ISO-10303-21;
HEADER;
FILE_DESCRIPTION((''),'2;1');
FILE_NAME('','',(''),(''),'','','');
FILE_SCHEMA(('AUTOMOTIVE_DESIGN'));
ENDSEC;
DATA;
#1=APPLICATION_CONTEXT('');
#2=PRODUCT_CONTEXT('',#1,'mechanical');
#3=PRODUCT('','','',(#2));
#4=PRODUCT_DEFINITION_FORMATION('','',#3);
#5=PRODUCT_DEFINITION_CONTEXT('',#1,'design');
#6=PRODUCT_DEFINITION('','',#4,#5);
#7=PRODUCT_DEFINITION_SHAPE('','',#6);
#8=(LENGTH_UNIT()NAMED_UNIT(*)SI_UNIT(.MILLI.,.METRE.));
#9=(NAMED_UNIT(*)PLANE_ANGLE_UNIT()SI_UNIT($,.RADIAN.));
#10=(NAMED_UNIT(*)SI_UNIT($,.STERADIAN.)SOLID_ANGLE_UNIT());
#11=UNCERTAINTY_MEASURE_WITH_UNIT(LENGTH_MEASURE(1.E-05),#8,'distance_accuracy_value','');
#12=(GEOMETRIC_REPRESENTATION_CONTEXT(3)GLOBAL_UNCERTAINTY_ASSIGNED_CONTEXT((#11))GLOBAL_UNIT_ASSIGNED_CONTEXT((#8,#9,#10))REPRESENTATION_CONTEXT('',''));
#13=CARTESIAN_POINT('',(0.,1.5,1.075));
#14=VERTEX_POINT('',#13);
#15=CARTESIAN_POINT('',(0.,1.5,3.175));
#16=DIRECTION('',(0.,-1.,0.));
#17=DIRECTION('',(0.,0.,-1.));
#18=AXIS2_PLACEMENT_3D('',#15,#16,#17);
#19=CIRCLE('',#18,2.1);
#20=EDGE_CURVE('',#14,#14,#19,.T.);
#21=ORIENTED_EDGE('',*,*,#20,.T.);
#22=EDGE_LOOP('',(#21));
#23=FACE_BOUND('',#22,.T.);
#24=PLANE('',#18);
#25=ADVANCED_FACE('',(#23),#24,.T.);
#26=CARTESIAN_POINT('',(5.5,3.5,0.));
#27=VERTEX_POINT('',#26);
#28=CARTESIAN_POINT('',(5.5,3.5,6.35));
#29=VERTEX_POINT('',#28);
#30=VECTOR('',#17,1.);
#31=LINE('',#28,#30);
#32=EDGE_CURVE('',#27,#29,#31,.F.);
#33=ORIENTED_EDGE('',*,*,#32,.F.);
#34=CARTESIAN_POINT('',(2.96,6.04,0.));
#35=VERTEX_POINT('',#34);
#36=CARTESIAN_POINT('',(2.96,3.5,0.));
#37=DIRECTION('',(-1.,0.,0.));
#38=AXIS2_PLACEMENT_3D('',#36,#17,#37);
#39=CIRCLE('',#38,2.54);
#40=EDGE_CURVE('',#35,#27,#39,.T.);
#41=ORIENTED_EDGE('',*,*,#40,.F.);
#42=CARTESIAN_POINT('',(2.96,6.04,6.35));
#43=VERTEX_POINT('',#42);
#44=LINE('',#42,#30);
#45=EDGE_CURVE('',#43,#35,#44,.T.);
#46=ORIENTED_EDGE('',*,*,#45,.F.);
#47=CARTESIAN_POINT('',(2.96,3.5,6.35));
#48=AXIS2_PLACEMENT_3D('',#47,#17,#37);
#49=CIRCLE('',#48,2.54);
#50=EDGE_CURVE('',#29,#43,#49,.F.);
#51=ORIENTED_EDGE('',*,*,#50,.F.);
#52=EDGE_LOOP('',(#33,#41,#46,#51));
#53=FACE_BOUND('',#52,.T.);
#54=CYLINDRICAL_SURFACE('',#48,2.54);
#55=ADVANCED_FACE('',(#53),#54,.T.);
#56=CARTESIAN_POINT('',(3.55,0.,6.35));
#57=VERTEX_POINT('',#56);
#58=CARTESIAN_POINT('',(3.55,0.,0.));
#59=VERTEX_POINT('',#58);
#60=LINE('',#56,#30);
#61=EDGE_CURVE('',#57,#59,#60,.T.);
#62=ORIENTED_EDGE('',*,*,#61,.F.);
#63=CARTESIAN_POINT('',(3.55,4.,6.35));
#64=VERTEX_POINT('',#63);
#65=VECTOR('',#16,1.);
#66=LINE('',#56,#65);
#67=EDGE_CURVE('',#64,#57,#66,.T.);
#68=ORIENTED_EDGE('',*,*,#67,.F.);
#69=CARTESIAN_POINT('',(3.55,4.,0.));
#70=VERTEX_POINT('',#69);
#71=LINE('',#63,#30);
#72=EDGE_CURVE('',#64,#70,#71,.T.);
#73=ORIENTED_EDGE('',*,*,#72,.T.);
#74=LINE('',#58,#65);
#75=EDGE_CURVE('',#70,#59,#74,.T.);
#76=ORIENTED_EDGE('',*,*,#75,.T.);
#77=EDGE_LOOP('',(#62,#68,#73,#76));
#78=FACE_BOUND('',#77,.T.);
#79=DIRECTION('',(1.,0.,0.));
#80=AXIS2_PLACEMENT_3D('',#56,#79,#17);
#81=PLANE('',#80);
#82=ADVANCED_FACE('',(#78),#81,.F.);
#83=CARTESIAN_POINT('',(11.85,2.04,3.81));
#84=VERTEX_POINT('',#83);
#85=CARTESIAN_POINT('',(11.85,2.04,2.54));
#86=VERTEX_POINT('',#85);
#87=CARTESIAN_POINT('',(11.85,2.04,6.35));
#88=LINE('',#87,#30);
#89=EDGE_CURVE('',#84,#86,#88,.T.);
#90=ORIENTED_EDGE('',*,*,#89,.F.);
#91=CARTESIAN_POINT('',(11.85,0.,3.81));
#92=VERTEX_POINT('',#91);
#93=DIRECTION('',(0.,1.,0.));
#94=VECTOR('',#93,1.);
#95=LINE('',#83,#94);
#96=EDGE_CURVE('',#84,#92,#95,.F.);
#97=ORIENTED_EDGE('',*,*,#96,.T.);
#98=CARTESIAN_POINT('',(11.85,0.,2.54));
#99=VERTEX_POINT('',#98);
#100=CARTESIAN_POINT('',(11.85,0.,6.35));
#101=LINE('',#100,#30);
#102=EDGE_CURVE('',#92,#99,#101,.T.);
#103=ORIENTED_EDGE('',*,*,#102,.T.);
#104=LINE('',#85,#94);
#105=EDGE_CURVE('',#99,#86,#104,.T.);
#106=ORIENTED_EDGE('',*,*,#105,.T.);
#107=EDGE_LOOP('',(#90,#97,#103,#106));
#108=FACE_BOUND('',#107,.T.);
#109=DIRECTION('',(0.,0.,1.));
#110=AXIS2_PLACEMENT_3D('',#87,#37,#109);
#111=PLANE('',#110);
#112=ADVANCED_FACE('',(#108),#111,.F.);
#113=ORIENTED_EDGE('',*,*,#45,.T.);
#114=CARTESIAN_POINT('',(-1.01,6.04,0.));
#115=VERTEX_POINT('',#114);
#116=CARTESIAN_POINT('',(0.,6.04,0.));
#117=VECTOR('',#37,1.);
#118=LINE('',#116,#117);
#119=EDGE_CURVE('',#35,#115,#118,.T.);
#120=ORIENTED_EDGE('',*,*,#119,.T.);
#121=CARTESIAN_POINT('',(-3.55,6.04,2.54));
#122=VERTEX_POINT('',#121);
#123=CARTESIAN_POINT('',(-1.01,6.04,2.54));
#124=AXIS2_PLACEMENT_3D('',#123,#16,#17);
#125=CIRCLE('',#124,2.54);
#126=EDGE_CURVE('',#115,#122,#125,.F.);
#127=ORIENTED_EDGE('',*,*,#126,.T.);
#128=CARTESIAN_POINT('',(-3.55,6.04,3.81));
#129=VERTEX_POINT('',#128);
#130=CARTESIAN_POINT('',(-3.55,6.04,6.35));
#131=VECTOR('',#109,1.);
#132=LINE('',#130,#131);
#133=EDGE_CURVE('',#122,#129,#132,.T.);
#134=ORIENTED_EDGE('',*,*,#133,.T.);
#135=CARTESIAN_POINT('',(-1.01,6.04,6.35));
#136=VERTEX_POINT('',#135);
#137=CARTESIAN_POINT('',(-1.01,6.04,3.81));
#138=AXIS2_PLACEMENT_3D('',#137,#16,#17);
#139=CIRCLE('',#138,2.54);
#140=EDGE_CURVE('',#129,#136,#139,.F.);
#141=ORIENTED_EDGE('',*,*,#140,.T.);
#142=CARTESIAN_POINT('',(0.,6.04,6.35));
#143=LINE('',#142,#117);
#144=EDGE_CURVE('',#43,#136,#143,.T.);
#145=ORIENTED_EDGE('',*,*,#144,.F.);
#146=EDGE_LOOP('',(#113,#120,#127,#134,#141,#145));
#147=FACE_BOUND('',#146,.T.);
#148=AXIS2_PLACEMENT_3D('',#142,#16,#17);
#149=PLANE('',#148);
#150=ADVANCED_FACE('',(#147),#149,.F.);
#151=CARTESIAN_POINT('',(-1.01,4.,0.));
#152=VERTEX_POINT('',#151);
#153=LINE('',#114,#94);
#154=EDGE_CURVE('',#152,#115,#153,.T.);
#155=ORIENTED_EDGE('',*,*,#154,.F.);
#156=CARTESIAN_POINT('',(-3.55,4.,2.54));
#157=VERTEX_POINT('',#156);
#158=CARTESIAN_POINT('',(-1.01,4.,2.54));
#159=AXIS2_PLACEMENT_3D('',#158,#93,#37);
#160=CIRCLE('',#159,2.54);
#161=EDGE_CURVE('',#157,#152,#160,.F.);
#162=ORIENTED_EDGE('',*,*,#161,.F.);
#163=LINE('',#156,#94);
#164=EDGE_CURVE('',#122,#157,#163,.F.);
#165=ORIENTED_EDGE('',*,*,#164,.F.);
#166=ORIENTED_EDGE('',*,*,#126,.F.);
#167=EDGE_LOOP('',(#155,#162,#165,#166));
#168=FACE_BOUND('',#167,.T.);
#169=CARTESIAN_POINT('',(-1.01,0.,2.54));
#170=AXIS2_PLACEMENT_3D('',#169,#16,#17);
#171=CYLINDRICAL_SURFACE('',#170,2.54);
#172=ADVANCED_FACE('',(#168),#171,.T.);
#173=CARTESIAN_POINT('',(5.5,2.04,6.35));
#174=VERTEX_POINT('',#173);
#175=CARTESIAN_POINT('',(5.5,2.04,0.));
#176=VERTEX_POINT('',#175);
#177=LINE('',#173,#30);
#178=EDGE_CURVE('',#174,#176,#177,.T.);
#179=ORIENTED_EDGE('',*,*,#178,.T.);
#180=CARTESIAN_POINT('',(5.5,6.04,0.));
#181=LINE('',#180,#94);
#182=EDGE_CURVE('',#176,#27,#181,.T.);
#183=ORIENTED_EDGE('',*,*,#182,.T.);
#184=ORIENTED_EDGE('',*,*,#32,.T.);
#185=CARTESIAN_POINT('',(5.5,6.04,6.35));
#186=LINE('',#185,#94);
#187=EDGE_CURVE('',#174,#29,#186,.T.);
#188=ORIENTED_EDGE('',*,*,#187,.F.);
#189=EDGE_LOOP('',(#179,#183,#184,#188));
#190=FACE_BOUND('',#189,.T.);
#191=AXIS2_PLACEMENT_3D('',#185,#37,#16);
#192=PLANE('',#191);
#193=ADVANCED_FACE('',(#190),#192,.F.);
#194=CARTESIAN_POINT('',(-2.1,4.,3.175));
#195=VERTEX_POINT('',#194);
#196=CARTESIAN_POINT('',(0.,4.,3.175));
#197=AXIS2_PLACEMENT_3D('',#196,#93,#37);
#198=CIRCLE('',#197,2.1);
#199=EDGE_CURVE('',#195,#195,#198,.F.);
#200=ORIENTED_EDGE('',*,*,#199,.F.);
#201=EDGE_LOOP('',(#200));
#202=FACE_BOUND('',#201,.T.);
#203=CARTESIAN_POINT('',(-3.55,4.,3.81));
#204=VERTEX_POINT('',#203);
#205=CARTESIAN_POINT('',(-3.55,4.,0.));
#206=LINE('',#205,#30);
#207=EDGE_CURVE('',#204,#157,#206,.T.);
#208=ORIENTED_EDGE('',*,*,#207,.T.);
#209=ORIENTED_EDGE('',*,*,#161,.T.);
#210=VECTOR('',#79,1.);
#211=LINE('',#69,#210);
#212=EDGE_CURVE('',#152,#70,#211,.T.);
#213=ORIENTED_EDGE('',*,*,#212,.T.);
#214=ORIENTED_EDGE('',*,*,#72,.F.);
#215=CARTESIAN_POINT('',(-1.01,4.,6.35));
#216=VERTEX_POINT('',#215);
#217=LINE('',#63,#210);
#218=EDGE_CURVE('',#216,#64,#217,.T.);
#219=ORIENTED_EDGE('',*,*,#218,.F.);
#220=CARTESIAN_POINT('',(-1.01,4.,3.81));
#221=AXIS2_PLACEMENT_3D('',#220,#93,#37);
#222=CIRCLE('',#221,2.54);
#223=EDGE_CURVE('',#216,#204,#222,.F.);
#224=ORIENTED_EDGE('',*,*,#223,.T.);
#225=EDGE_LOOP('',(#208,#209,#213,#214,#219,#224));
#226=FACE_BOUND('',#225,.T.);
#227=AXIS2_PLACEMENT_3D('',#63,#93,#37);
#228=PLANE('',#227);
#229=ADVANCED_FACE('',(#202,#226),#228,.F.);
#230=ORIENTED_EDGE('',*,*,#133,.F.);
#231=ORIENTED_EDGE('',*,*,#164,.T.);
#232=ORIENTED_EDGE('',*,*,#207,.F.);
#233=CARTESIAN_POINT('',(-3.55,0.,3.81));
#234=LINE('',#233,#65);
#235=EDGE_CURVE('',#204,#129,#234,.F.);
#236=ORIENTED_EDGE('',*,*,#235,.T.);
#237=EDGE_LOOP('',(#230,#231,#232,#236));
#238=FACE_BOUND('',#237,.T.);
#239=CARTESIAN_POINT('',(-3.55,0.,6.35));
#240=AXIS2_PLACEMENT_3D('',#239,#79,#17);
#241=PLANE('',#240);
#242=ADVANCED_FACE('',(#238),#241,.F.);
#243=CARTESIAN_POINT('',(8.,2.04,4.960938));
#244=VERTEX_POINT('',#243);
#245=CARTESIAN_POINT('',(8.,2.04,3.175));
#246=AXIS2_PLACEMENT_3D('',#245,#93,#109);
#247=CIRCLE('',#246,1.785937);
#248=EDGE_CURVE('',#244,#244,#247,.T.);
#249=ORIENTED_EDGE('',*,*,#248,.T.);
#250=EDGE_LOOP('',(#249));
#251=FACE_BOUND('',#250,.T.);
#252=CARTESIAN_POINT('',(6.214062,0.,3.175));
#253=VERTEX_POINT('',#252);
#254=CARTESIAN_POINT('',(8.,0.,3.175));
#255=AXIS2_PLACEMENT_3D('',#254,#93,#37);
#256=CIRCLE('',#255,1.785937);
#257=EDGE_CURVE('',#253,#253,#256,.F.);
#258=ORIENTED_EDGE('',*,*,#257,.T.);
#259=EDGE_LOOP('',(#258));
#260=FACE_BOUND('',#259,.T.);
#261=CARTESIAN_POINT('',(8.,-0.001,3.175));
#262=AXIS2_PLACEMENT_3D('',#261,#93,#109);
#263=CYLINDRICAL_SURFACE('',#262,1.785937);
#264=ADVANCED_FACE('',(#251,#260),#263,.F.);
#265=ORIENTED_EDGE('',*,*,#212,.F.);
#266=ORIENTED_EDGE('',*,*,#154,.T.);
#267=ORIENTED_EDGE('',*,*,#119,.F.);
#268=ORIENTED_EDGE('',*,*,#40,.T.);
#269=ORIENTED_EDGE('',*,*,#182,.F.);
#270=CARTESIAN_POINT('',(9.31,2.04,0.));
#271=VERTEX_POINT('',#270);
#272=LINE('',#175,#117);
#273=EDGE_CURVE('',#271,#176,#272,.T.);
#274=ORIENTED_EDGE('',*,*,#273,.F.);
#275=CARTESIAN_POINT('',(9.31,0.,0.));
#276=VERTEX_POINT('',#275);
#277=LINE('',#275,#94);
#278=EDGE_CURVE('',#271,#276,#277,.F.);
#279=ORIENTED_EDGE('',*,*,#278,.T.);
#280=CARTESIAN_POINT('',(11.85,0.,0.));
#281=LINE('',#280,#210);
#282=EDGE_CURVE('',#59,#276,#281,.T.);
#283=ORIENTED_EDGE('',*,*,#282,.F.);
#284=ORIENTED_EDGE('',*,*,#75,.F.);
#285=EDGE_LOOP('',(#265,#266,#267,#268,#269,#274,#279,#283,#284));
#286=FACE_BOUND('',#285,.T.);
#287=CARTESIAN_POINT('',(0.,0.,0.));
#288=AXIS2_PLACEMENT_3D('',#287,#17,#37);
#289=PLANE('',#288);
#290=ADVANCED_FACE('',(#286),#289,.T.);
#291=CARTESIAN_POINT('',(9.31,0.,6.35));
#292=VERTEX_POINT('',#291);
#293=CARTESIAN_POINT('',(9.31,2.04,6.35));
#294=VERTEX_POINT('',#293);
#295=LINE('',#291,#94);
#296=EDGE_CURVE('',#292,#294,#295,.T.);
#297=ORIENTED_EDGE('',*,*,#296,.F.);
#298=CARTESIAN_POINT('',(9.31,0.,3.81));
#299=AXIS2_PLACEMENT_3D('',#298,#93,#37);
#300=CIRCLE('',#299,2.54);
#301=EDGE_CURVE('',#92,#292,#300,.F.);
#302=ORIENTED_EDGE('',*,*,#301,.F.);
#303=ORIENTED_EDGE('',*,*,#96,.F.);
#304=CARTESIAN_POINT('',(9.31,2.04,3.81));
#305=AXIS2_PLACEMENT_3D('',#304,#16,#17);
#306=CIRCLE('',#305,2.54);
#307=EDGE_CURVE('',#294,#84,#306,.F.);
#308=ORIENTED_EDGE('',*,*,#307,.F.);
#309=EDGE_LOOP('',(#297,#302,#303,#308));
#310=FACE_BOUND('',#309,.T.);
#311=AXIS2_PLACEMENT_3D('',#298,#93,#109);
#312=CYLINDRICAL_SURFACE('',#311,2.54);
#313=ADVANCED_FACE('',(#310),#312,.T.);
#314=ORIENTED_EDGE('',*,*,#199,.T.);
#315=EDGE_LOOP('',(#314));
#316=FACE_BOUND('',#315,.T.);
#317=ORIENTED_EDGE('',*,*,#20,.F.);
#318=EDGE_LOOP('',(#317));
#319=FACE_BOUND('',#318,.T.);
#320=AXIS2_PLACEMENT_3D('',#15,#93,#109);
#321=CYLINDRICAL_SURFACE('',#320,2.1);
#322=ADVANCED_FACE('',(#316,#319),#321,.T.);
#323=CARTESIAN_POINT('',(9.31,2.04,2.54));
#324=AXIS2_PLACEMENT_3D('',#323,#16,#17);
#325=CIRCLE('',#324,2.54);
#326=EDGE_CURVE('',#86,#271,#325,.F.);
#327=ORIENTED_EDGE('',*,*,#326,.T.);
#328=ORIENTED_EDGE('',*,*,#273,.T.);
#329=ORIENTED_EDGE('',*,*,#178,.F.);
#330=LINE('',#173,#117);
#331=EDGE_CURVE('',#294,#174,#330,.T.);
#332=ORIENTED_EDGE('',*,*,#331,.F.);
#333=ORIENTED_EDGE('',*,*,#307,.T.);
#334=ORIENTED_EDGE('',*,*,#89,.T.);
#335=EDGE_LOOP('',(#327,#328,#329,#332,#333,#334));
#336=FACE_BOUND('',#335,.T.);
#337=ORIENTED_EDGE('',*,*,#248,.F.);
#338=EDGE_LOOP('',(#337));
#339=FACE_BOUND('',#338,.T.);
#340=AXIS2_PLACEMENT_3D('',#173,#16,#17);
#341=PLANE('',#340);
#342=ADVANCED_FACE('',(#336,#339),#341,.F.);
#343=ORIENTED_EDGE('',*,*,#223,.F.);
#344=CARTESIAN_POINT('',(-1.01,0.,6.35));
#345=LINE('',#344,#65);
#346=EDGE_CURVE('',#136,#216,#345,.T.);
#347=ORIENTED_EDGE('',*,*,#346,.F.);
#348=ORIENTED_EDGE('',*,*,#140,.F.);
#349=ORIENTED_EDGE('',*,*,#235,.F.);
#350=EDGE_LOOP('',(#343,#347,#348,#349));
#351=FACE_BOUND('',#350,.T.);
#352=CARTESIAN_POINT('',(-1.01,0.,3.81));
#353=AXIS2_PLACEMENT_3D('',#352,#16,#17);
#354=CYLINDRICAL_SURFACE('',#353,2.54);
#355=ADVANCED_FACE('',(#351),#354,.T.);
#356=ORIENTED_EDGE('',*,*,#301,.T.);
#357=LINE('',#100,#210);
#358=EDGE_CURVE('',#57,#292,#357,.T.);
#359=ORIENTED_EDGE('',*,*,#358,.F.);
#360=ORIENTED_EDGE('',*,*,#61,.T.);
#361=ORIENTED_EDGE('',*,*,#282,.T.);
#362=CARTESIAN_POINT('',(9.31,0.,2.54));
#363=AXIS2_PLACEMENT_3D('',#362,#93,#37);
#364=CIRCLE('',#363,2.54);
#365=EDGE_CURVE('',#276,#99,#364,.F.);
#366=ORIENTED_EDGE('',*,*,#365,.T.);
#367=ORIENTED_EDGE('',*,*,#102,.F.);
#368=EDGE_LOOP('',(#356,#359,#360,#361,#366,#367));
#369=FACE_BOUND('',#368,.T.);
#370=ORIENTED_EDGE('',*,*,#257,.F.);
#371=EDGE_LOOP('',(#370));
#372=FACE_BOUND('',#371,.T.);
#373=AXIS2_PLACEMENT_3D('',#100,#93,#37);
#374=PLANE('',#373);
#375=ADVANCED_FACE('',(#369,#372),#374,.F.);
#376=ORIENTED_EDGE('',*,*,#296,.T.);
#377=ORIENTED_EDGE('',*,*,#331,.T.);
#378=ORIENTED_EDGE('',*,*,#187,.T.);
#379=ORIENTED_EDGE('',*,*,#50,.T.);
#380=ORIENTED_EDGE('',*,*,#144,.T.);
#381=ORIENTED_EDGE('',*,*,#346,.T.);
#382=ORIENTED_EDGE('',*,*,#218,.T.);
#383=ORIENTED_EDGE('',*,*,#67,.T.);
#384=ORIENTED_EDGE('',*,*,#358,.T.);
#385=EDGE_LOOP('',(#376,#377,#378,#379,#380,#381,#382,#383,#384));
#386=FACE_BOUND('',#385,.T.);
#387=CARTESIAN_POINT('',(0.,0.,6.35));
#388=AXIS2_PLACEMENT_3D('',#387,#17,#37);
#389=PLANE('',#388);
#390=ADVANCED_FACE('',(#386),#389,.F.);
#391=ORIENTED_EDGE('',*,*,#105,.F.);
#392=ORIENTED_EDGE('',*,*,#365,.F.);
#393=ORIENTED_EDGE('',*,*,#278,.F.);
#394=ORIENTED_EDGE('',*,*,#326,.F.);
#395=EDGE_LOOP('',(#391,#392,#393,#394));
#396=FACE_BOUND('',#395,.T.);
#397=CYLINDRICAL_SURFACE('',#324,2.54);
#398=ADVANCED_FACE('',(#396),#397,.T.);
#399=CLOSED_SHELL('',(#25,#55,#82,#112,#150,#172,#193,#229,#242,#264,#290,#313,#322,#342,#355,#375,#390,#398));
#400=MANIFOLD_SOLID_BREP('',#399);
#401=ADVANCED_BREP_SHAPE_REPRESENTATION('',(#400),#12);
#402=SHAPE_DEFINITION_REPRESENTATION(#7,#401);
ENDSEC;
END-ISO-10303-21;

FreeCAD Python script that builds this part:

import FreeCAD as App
import Part
import Sketcher
from FreeCAD import Vector
Q = App.Units.Quantity


def edges_at(feature, points):
    """Names of the edges that pass closest to the given points."""
    edges = feature.Shape.Edges
    near = lambda p: min(range(len(edges)), key=lambda i: edges[i].distToShape(Part.Vertex(*p))[0])
    return sorted({f"Edge{near(p) + 1}" for p in points})

doc = App.newDocument("Part")
body = doc.addObject("PartDesign::Body", "Body")

sketch1 = body.newObject("Sketcher::SketchObject", "Sketch")
sketch1.AttachmentSupport = (doc.getObject("XY_Plane"), [""])
sketch1.MapMode = "FlatFace"
sketch1.addGeometry(Part.LineSegment(Vector(5.5, 6, 0), Vector(0, 6, 0)), False)
sketch1.addGeometry(Part.LineSegment(Vector(0, 6, 0), Vector(0, 4, 0)), False)
sketch1.addGeometry(Part.LineSegment(Vector(0, 4, 0), Vector(3.5, 4, 0)), False)
sketch1.addGeometry(Part.LineSegment(Vector(3.5, 4, 0), Vector(3.5, 0, 0)), False)
sketch1.addGeometry(Part.LineSegment(Vector(3.5, 0, 0), Vector(11.8, 0, 0)), False)
sketch1.addGeometry(Part.LineSegment(Vector(11.8, 0, 0), Vector(11.8, 2, 0)), False)
sketch1.addGeometry(Part.LineSegment(Vector(11.8, 2, 0), Vector(5.5, 2, 0)), False)
sketch1.addGeometry(Part.LineSegment(Vector(5.5, 2, 0), Vector(5.5, 6, 0)), False)
sketch1.addConstraint(Sketcher.Constraint("Coincident", 0, 2, 1, 1))
sketch1.addConstraint(Sketcher.Constraint("Coincident", 1, 2, 2, 1))
sketch1.addConstraint(Sketcher.Constraint("Coincident", 2, 2, 3, 1))
sketch1.addConstraint(Sketcher.Constraint("Coincident", 3, 2, 4, 1))
sketch1.addConstraint(Sketcher.Constraint("Coincident", 4, 2, 5, 1))
sketch1.addConstraint(Sketcher.Constraint("Coincident", 5, 2, 6, 1))
sketch1.addConstraint(Sketcher.Constraint("Coincident", 6, 2, 7, 1))
sketch1.addConstraint(Sketcher.Constraint("Coincident", 7, 2, 0, 1))
sketch1.addConstraint(Sketcher.Constraint("Horizontal", 0))
sketch1.addConstraint(Sketcher.Constraint("Vertical", 1))
sketch1.addConstraint(Sketcher.Constraint("Horizontal", 2))
sketch1.addConstraint(Sketcher.Constraint("Vertical", 3))
sketch1.addConstraint(Sketcher.Constraint("Horizontal", 4))
sketch1.addConstraint(Sketcher.Constraint("Vertical", 5))
sketch1.addConstraint(Sketcher.Constraint("Horizontal", 6))
sketch1.addConstraint(Sketcher.Constraint("Vertical", 7))
sketch1.addConstraint(Sketcher.Constraint("PointOnObject", 0, 2, -2))
sketch1.addConstraint(Sketcher.Constraint("PointOnObject", 3, 2, -1))
sketch1.addConstraint(Sketcher.Constraint("Equal", 1, 5))
sketch1.addConstraint(Sketcher.Constraint("DistanceY", 3, 2, 3, 1, Q("4 mm")))
sketch1.addConstraint(Sketcher.Constraint("DistanceX", 0, 2, 0, 1, Q("5.5 mm")))
sketch1.addConstraint(Sketcher.Constraint("DistanceX", 4, 1, 4, 2, Q("8.3 mm")))
sketch1.addConstraint(Sketcher.Constraint("DistanceX", 2, 1, 2, 2, Q("3.55 mm")))
sketch1.addConstraint(Sketcher.Constraint("DistanceY", 1, 2, 1, 1, Q("2.04 mm")))
pad1 = body.newObject("PartDesign::Pad", "Pad")
pad1.Profile = sketch1
pad1.Length = 6.35
doc.recompute()

fillet = body.newObject("PartDesign::Fillet", "Fillet")
fillet.Base = (pad1, edges_at(pad1, [(5.5, 6.04, 3.175), (11.85, 1.02, 6.35), (11.85, 1.02, 0)]))
fillet.Radius = 2.54

sketch2 = body.newObject("Sketcher::SketchObject", "Sketch001")
sketch2.AttachmentSupport = (doc.getObject("XZ_Plane"), [""])
sketch2.MapMode = "FlatFace"
sketch2.AttachmentOffset = App.Placement(Vector(0, 0, -2.04), App.Rotation())
sketch2.addGeometry(Part.Circle(Vector(8, 3.2, 0), Vector(0, 0, 1), 1.8), False)
sketch2.addConstraint(Sketcher.Constraint("DistanceX", -1, 1, 0, 3, Q("8 mm")))
sketch2.addConstraint(Sketcher.Constraint("Diameter", 0, Q("3.571875 mm")))
sketch2.addConstraint(Sketcher.Constraint("DistanceY", -1, 1, 0, 3, Q("3.175 mm")))
pocket1 = body.newObject("PartDesign::Pocket", "Pocket")
pocket1.Profile = sketch2
pocket1.Type = "UpToFirst"
pocket1.Reversed = True

sketch3 = body.newObject("Sketcher::SketchObject", "Sketch002")
sketch3.AttachmentSupport = (doc.getObject("YZ_Plane"), [""])
sketch3.MapMode = "FlatFace"
sketch3.addGeometry(Part.LineSegment(Vector(6, 0, 0), Vector(4, 0, 0)), False)
sketch3.addGeometry(Part.LineSegment(Vector(4, 0, 0), Vector(4, 6.3, 0)), False)
sketch3.addGeometry(Part.LineSegment(Vector(4, 6.3, 0), Vector(6, 6.3, 0)), False)
sketch3.addGeometry(Part.LineSegment(Vector(6, 6.3, 0), Vector(6, 0, 0)), False)
sketch3.addConstraint(Sketcher.Constraint("Coincident", 0, 2, 1, 1))
sketch3.addConstraint(Sketcher.Constraint("Coincident", 1, 2, 2, 1))
sketch3.addConstraint(Sketcher.Constraint("Coincident", 2, 2, 3, 1))
sketch3.addConstraint(Sketcher.Constraint("Coincident", 3, 2, 0, 1))
sketch3.addConstraint(Sketcher.Constraint("Horizontal", 0))
sketch3.addConstraint(Sketcher.Constraint("Vertical", 1))
sketch3.addConstraint(Sketcher.Constraint("Horizontal", 2))
sketch3.addConstraint(Sketcher.Constraint("Vertical", 3))
sketch3.addConstraint(Sketcher.Constraint("PointOnObject", 0, 2, -1))
sketch3.addConstraint(Sketcher.Constraint("DistanceX", -1, 1, 0, 2, Q("4 mm")))
sketch3.addConstraint(Sketcher.Constraint("DistanceX", 0, 2, 0, 1, Q("2.04 mm")))
sketch3.addConstraint(Sketcher.Constraint("DistanceY", 1, 1, 1, 2, Q("6.35 mm")))
pad2 = body.newObject("PartDesign::Pad", "Pad001")
pad2.Profile = sketch3
pad2.Length = 3.55
pad2.Reversed = True

sketch4 = body.newObject("Sketcher::SketchObject", "Sketch003")
sketch4.AttachmentSupport = (doc.getObject("XZ_Plane"), [""])
sketch4.MapMode = "FlatFace"
sketch4.AttachmentOffset = App.Placement(Vector(0, 0, -4), App.Rotation())
sketch4.addGeometry(Part.Circle(Vector(0, 3.2, 0), Vector(0, 0, 1), 2.1), False)
sketch4.addConstraint(Sketcher.Constraint("PointOnObject", 0, 3, -2))
sketch4.addConstraint(Sketcher.Constraint("Diameter", 0, Q("4.2 mm")))
sketch4.addConstraint(Sketcher.Constraint("DistanceY", -1, 1, 0, 3, Q("3.175 mm")))
pad3 = body.newObject("PartDesign::Pad", "Pad002")
pad3.Profile = sketch4
pad3.Length = 2.5
doc.recompute()

fillet2 = body.newObject("PartDesign::Fillet", "Fillet001")
fillet2.Base = (pad3, edges_at(pad3, [(-3.55, 5.02, 6.35), (-3.55, 5.02, 0)]))
fillet2.Radius = 2.54

doc.recompute()
